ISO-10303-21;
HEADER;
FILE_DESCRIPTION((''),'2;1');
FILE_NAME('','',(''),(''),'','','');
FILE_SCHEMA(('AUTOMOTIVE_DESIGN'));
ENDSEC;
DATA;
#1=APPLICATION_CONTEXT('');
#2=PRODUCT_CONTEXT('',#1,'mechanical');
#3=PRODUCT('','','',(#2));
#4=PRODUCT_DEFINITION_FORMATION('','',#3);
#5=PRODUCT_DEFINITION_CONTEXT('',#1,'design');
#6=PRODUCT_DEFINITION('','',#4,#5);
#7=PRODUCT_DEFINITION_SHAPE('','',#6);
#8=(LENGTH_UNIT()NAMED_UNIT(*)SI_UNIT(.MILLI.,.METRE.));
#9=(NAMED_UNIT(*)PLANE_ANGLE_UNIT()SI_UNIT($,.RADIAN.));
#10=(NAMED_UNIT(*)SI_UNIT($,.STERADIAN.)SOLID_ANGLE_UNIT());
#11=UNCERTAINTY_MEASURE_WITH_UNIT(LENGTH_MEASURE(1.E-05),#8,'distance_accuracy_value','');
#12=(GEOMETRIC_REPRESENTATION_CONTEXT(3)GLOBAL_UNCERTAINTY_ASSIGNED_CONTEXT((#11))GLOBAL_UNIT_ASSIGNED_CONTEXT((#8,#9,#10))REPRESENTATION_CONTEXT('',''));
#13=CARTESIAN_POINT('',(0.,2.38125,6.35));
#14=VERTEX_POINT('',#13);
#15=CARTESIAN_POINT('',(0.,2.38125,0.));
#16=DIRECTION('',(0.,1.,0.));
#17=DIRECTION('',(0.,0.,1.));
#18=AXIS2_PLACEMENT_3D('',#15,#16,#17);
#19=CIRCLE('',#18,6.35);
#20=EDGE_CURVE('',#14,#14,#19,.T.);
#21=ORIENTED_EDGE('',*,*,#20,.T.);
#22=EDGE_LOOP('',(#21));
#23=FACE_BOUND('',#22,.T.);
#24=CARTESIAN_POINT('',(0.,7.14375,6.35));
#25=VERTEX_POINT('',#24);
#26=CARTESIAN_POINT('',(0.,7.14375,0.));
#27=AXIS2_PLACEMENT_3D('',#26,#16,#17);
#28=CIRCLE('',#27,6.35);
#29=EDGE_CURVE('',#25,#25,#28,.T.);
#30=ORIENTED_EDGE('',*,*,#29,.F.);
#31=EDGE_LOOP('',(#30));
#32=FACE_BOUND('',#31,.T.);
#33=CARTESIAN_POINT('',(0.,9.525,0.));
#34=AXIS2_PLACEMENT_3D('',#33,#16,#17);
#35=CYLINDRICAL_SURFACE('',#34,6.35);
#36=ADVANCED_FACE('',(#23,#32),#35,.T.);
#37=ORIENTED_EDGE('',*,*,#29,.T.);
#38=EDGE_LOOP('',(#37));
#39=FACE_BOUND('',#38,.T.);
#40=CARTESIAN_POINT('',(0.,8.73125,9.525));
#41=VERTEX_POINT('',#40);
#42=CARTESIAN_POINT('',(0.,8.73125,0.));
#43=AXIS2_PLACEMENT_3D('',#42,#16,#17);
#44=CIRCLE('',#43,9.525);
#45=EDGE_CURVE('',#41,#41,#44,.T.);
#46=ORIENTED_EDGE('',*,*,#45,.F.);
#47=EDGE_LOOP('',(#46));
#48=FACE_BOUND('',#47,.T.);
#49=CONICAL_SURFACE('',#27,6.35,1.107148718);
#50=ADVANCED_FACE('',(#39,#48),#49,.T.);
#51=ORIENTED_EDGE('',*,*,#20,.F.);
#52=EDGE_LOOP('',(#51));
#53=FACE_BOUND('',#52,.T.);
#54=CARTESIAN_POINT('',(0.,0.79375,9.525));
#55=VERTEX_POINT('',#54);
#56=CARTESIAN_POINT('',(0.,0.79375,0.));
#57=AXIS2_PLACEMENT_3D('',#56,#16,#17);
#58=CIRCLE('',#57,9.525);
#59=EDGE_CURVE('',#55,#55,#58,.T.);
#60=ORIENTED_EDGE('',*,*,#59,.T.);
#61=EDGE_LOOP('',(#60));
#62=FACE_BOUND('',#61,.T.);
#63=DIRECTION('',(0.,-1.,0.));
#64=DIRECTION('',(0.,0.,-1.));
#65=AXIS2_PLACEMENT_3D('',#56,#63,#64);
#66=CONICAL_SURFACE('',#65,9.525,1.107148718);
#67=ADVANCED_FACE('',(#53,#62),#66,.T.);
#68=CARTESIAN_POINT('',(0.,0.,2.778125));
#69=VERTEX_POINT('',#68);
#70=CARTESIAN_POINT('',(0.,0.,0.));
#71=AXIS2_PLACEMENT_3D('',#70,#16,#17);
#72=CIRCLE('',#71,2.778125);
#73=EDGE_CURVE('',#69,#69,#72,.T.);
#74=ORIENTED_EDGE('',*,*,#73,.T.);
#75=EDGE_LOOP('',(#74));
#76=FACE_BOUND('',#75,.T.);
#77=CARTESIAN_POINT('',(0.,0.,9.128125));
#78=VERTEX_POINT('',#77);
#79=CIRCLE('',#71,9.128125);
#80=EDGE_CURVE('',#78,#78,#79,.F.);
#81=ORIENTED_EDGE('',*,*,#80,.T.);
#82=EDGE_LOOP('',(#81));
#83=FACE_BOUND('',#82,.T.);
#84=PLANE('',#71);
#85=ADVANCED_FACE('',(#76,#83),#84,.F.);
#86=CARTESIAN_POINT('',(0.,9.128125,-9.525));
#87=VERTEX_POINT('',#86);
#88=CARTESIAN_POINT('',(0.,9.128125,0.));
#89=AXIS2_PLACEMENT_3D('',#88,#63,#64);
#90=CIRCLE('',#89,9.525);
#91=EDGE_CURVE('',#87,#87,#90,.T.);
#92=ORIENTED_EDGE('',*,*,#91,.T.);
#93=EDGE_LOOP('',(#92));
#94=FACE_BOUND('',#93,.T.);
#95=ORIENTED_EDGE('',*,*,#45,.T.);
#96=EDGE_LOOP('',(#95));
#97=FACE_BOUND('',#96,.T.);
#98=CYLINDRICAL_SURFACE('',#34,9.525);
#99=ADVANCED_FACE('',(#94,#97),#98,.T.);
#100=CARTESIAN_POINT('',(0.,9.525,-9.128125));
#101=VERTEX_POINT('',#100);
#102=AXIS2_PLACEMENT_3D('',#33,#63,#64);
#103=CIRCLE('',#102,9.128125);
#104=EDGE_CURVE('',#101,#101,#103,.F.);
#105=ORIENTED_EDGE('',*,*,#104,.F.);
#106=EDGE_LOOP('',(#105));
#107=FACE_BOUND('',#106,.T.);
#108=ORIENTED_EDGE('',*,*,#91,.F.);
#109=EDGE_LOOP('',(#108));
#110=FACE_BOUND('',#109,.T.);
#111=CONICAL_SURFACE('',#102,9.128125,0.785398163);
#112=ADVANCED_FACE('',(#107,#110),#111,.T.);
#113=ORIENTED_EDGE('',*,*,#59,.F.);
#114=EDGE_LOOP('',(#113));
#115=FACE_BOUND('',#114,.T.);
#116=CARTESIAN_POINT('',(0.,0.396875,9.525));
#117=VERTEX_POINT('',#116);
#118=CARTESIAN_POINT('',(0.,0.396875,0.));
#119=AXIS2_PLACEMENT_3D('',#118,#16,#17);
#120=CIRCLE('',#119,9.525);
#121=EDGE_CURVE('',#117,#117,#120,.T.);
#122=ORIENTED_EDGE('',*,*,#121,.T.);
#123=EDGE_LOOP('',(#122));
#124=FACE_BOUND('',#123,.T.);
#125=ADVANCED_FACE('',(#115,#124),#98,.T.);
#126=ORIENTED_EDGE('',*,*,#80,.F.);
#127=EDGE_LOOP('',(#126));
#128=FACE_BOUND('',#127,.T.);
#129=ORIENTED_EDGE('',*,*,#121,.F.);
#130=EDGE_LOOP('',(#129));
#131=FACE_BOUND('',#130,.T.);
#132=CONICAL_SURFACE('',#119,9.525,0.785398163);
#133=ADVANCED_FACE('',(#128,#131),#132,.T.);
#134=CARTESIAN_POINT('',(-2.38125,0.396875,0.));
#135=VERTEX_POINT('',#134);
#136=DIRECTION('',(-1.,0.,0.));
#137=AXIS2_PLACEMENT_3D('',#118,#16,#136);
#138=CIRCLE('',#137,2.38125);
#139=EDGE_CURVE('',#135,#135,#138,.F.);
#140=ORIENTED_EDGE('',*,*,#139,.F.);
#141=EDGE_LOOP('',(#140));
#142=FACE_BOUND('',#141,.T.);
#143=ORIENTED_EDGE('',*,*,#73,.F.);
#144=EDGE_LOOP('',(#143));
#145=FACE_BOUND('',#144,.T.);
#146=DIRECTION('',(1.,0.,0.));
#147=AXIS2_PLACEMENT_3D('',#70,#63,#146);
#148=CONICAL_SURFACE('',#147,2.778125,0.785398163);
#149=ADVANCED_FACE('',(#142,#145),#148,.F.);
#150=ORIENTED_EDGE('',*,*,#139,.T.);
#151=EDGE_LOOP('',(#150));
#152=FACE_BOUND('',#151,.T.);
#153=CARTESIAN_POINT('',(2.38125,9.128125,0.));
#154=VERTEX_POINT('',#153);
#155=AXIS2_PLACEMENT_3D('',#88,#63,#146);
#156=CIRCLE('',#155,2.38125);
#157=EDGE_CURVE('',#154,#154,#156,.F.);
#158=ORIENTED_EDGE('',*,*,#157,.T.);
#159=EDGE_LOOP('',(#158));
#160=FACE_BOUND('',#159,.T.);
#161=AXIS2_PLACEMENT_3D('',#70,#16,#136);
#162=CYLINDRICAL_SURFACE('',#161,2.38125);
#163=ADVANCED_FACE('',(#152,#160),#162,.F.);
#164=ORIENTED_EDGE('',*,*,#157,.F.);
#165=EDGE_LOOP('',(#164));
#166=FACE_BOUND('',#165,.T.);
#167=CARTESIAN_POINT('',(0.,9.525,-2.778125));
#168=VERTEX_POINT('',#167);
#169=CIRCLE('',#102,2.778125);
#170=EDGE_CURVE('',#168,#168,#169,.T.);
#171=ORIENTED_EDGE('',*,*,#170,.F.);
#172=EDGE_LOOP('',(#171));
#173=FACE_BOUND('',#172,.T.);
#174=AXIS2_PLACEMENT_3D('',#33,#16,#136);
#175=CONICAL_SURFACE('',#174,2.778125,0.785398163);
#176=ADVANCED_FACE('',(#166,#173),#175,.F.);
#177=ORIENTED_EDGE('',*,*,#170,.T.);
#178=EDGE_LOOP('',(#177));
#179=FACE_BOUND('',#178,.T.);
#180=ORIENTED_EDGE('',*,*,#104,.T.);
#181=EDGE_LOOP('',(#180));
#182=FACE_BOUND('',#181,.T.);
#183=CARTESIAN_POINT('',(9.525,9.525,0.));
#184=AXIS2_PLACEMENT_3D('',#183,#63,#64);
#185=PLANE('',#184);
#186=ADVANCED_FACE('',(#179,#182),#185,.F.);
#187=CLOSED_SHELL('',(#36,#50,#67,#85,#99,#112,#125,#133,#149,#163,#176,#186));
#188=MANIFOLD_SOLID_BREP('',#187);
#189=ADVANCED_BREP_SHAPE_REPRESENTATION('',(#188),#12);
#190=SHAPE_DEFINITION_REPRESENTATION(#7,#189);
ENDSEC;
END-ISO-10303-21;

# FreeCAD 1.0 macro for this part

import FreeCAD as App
import Part
import Sketcher
Q = App.Units.Quantity


def edges_at(feature, points):
    """Names of the edges that pass closest to the given points."""
    edges = feature.Shape.Edges
    near = lambda p: min(range(len(edges)), key=lambda i: edges[i].distToShape(Part.Vertex(*p))[0])
    return sorted({f"Edge{near(p) + 1}" for p in points})

doc = App.newDocument("Part")
params = doc.addObject("Spreadsheet::Sheet", "Params")
for row, (alias, value) in enumerate([
    ("sketch1_width", "0.375 in"),
    ("sketch1_height", "0.03125 in"),
    ("sketch1_height2", "0.1875 in"),
    ("revolution_angle", "360 deg"),
    ("sketch2_diameter", "0.1875 in"),
    ("chamfer_size", "0.015625 in"),
], start=1):
    params.set(f"A{row}", alias)
    params.set(f"B{row}", "=" + value)
    params.setAlias(f"B{row}", alias)

body = doc.addObject("PartDesign::Body", "Body")

sketch1 = body.newObject("Sketcher::SketchObject", "Sketch")
sketch1.AttachmentSupport = (doc.getObject("XY_Plane"), [""])
sketch1.MapMode = "FlatFace"
sketch1.addGeometry([
    Part.LineSegment(App.Vector(0, 0, 0), App.Vector(9.525, 0, 0)),
    Part.LineSegment(App.Vector(9.525, 0, 0), App.Vector(9.525, 0.79375, 0)),
    Part.LineSegment(App.Vector(9.525, 0.79375, 0), App.Vector(6.35, 2.38125, 0)),
    Part.LineSegment(App.Vector(6.35, 2.38125, 0), App.Vector(6.35, 7.14375, 0)),
    Part.LineSegment(App.Vector(6.35, 7.14375, 0), App.Vector(9.525, 8.73125, 0)),
    Part.LineSegment(App.Vector(9.525, 8.73125, 0), App.Vector(9.525, 9.525, 0)),
    Part.LineSegment(App.Vector(9.525, 9.525, 0), App.Vector(0, 9.525, 0)),
    Part.LineSegment(App.Vector(0, 9.525, 0), App.Vector(0, 0, 0)),
], False)
sketch1.addConstraint([
    Sketcher.Constraint("Coincident", 0, 2, 1, 1),
    Sketcher.Constraint("Coincident", 1, 2, 2, 1),
    Sketcher.Constraint("Coincident", 2, 2, 3, 1),
    Sketcher.Constraint("Coincident", 3, 2, 4, 1),
    Sketcher.Constraint("Coincident", 4, 2, 5, 1),
    Sketcher.Constraint("Coincident", 5, 2, 6, 1),
    Sketcher.Constraint("Coincident", 6, 2, 7, 1),
    Sketcher.Constraint("Coincident", 7, 2, 0, 1),
    Sketcher.Constraint("Horizontal", 0),
    Sketcher.Constraint("Vertical", 1),
    Sketcher.Constraint("Vertical", 3),
    Sketcher.Constraint("Vertical", 5),
    Sketcher.Constraint("Horizontal", 6),
    Sketcher.Constraint("Vertical", 7),
    Sketcher.Constraint("Coincident", 7, 2, -1, 1),
    Sketcher.Constraint("Vertical", 1, 2, 4, 2),
    Sketcher.Constraint("Equal", 1, 5),
    Sketcher.Constraint("Equal", 6, 7),
    Sketcher.Constraint("Equal", 2, 4),
    Sketcher.Constraint("DistanceX", 0, 1, 0, 2, Q("0.375 in")),
    Sketcher.Constraint("DistanceY", 1, 1, 1, 2, Q("0.03125 in")),
    Sketcher.Constraint("DistanceY", 3, 1, 3, 2, Q("0.1875 in")),
    Sketcher.Constraint("DistanceX", -1, 1, 2, 2, Q("0.25 in")),
])
sketch1.setExpression("Constraints[19]", "Params.sketch1_width")
sketch1.setExpression("Constraints[20]", "Params.sketch1_height")
sketch1.setExpression("Constraints[21]", "Params.sketch1_height2")
revolution = body.newObject("PartDesign::Revolution", "Revolution")
revolution.Profile = sketch1
revolution.ReferenceAxis = (sketch1, ["V_Axis"])
revolution.setExpression("Angle", "Params.revolution_angle")

sketch2 = body.newObject("Sketcher::SketchObject", "Sketch001")
sketch2.AttachmentSupport = (doc.getObject("XZ_Plane"), [""])
sketch2.MapMode = "FlatFace"
sketch2.AttachmentOffset = App.Placement(App.Vector(0, 0, -0.375 * 25.4), App.Rotation())
sketch2.addGeometry(Part.Circle(App.Vector(0, 0, 0), App.Vector(0, 0, 1), 2.38125), False)
sketch2.addConstraint([
    Sketcher.Constraint("Coincident", 0, 3, -1, 1),
    Sketcher.Constraint("Diameter", 0, Q("0.1875 in")),
])
sketch2.setExpression("Constraints[1]", "Params.sketch2_diameter")
pocket1 = body.newObject("PartDesign::Pocket", "Pocket")
pocket1.Profile = sketch2
pocket1.Type = "ThroughAll"
pocket1.Midplane = True
doc.recompute()

chamfer = body.newObject("PartDesign::Chamfer", "Chamfer")
chamfer.Base = (pocket1, edges_at(pocket1, [
    (-2.381, 0, 0),
    (-2.381, 9.525, 0),
    (-9.525, 9.525, 0),
    (-9.525, 0, 0),
]))
chamfer.setExpression("Size", "Params.chamfer_size")

doc.recompute()
